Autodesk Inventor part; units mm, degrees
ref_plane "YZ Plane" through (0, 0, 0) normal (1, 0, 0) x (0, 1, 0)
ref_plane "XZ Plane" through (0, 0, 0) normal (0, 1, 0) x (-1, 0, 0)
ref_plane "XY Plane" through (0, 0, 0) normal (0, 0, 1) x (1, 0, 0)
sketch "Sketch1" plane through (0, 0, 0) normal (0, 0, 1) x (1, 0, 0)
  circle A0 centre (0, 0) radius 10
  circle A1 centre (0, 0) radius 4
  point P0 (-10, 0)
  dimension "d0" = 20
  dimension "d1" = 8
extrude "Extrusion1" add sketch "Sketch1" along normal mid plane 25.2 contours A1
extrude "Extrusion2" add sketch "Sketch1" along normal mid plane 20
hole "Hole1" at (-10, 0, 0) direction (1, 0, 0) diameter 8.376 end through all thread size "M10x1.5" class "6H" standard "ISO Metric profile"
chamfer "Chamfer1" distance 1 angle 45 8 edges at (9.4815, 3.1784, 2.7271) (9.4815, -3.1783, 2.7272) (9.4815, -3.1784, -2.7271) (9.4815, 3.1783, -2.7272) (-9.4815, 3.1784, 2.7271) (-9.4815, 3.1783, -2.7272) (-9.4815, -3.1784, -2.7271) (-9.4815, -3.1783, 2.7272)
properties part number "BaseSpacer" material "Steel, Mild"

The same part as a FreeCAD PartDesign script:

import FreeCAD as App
import Part
import Sketcher

V = App.Vector


def edges_at(feature, points):
    """Names of the edges that pass closest to the given points."""
    edges = feature.Shape.Edges
    near = lambda p: min(range(len(edges)), key=lambda i: edges[i].distToShape(Part.Vertex(*p))[0])
    return sorted({f"Edge{near(p) + 1}" for p in points})

doc = App.newDocument("Part")
params = doc.addObject("Spreadsheet::Sheet", "Params")
for row, (alias, value) in enumerate([
    ("sketch1_diameter", "8 mm"),
    ("pad1_length", "25.2 mm"),
    ("sketch2_diameter", "20 mm"),
    ("sketch2_diameter2", "8 mm"),
    ("pad2_length", "20 mm"),
    ("hole_diameter", "8.376 mm"),
    ("chamfer_size", "1 mm"),
], start=1):
    params.set(f"A{row}", alias)
    params.set(f"B{row}", "=" + value)
    params.setAlias(f"B{row}", alias)

body = doc.addObject("PartDesign::Body", "Body")

# Sketch on XY plane
sketch1 = body.newObject("Sketcher::SketchObject", "Sketch")
sketch1.AttachmentSupport = (doc.getObject("XY_Plane"), [""])
sketch1.MapMode = "FlatFace"
sketch1.addGeometry(Part.Circle(V(0, 0, 0), V(0, 0, 1), 4), False)
sketch1.addConstraint([
    Sketcher.Constraint("Coincident", 0, 3, -1, 1),
    Sketcher.Constraint("Diameter", 0, 8.0),
])
sketch1.setExpression("Constraints[1]", "Params.sketch1_diameter")
pad1 = body.newObject("PartDesign::Pad", "Pad")
pad1.Profile = sketch1
pad1.setExpression("Length", "Params.pad1_length")
pad1.Midplane = True

# Sketch on XY plane
sketch2 = body.newObject("Sketcher::SketchObject", "Sketch001")
sketch2.AttachmentSupport = (doc.getObject("XY_Plane"), [""])
sketch2.MapMode = "FlatFace"
sketch2.addGeometry([
    Part.Circle(V(0, 0, 0), V(0, 0, 1), 10),
    Part.Circle(V(0, 0, 0), V(0, 0, 1), 4),
], False)
sketch2.addConstraint([
    Sketcher.Constraint("Coincident", 0, 3, -1, 1),
    Sketcher.Constraint("Coincident", 1, 3, -1, 1),
    Sketcher.Constraint("Diameter", 0, 20.0),
    Sketcher.Constraint("Diameter", 1, 8.0),
])
sketch2.setExpression("Constraints[2]", "Params.sketch2_diameter")
sketch2.setExpression("Constraints[3]", "Params.sketch2_diameter2")
pad2 = body.newObject("PartDesign::Pad", "Pad001")
pad2.Profile = sketch2
pad2.setExpression("Length", "Params.pad2_length")
pad2.Midplane = True

# Sketch on YZ plane
sketch3 = body.newObject("Sketcher::SketchObject", "Sketch002")
sketch3.AttachmentSupport = (doc.getObject("YZ_Plane"), [""])
sketch3.MapMode = "FlatFace"
sketch3.AttachmentOffset = App.Placement(V(0, 0, -10), App.Rotation())
sketch3.addGeometry(Part.Circle(V(0, 0, 0), V(0, 0, 1), 4.2), False)
sketch3.addConstraint([
    Sketcher.Constraint("Coincident", 0, 3, -1, 1),
    Sketcher.Constraint("Diameter", 0, 8.376),
])
doc.recompute()
hole = body.newObject("PartDesign::Hole", "Hole")
hole.Profile = sketch3
hole.ThreadType = "None"
hole.setExpression("Diameter", "Params.hole_diameter")
hole.DepthType = "ThroughAll"
hole.Reversed = True
doc.recompute()

chamfer = body.newObject("PartDesign::Chamfer", "Chamfer")
chamfer.Base = (hole, edges_at(hole, [
    (9.482, 3.178, 2.727),
    (9.482, -3.178, 2.727),
    (9.482, -3.178, -2.727),
    (9.482, 3.178, -2.727),
    (-9.482, 3.178, 2.727),
    (-9.482, 3.178, -2.727),
    (-9.482, -3.178, -2.727),
    (-9.482, -3.178, 2.727),
]))
chamfer.setExpression("Size", "Params.chamfer_size")

doc.recompute()
